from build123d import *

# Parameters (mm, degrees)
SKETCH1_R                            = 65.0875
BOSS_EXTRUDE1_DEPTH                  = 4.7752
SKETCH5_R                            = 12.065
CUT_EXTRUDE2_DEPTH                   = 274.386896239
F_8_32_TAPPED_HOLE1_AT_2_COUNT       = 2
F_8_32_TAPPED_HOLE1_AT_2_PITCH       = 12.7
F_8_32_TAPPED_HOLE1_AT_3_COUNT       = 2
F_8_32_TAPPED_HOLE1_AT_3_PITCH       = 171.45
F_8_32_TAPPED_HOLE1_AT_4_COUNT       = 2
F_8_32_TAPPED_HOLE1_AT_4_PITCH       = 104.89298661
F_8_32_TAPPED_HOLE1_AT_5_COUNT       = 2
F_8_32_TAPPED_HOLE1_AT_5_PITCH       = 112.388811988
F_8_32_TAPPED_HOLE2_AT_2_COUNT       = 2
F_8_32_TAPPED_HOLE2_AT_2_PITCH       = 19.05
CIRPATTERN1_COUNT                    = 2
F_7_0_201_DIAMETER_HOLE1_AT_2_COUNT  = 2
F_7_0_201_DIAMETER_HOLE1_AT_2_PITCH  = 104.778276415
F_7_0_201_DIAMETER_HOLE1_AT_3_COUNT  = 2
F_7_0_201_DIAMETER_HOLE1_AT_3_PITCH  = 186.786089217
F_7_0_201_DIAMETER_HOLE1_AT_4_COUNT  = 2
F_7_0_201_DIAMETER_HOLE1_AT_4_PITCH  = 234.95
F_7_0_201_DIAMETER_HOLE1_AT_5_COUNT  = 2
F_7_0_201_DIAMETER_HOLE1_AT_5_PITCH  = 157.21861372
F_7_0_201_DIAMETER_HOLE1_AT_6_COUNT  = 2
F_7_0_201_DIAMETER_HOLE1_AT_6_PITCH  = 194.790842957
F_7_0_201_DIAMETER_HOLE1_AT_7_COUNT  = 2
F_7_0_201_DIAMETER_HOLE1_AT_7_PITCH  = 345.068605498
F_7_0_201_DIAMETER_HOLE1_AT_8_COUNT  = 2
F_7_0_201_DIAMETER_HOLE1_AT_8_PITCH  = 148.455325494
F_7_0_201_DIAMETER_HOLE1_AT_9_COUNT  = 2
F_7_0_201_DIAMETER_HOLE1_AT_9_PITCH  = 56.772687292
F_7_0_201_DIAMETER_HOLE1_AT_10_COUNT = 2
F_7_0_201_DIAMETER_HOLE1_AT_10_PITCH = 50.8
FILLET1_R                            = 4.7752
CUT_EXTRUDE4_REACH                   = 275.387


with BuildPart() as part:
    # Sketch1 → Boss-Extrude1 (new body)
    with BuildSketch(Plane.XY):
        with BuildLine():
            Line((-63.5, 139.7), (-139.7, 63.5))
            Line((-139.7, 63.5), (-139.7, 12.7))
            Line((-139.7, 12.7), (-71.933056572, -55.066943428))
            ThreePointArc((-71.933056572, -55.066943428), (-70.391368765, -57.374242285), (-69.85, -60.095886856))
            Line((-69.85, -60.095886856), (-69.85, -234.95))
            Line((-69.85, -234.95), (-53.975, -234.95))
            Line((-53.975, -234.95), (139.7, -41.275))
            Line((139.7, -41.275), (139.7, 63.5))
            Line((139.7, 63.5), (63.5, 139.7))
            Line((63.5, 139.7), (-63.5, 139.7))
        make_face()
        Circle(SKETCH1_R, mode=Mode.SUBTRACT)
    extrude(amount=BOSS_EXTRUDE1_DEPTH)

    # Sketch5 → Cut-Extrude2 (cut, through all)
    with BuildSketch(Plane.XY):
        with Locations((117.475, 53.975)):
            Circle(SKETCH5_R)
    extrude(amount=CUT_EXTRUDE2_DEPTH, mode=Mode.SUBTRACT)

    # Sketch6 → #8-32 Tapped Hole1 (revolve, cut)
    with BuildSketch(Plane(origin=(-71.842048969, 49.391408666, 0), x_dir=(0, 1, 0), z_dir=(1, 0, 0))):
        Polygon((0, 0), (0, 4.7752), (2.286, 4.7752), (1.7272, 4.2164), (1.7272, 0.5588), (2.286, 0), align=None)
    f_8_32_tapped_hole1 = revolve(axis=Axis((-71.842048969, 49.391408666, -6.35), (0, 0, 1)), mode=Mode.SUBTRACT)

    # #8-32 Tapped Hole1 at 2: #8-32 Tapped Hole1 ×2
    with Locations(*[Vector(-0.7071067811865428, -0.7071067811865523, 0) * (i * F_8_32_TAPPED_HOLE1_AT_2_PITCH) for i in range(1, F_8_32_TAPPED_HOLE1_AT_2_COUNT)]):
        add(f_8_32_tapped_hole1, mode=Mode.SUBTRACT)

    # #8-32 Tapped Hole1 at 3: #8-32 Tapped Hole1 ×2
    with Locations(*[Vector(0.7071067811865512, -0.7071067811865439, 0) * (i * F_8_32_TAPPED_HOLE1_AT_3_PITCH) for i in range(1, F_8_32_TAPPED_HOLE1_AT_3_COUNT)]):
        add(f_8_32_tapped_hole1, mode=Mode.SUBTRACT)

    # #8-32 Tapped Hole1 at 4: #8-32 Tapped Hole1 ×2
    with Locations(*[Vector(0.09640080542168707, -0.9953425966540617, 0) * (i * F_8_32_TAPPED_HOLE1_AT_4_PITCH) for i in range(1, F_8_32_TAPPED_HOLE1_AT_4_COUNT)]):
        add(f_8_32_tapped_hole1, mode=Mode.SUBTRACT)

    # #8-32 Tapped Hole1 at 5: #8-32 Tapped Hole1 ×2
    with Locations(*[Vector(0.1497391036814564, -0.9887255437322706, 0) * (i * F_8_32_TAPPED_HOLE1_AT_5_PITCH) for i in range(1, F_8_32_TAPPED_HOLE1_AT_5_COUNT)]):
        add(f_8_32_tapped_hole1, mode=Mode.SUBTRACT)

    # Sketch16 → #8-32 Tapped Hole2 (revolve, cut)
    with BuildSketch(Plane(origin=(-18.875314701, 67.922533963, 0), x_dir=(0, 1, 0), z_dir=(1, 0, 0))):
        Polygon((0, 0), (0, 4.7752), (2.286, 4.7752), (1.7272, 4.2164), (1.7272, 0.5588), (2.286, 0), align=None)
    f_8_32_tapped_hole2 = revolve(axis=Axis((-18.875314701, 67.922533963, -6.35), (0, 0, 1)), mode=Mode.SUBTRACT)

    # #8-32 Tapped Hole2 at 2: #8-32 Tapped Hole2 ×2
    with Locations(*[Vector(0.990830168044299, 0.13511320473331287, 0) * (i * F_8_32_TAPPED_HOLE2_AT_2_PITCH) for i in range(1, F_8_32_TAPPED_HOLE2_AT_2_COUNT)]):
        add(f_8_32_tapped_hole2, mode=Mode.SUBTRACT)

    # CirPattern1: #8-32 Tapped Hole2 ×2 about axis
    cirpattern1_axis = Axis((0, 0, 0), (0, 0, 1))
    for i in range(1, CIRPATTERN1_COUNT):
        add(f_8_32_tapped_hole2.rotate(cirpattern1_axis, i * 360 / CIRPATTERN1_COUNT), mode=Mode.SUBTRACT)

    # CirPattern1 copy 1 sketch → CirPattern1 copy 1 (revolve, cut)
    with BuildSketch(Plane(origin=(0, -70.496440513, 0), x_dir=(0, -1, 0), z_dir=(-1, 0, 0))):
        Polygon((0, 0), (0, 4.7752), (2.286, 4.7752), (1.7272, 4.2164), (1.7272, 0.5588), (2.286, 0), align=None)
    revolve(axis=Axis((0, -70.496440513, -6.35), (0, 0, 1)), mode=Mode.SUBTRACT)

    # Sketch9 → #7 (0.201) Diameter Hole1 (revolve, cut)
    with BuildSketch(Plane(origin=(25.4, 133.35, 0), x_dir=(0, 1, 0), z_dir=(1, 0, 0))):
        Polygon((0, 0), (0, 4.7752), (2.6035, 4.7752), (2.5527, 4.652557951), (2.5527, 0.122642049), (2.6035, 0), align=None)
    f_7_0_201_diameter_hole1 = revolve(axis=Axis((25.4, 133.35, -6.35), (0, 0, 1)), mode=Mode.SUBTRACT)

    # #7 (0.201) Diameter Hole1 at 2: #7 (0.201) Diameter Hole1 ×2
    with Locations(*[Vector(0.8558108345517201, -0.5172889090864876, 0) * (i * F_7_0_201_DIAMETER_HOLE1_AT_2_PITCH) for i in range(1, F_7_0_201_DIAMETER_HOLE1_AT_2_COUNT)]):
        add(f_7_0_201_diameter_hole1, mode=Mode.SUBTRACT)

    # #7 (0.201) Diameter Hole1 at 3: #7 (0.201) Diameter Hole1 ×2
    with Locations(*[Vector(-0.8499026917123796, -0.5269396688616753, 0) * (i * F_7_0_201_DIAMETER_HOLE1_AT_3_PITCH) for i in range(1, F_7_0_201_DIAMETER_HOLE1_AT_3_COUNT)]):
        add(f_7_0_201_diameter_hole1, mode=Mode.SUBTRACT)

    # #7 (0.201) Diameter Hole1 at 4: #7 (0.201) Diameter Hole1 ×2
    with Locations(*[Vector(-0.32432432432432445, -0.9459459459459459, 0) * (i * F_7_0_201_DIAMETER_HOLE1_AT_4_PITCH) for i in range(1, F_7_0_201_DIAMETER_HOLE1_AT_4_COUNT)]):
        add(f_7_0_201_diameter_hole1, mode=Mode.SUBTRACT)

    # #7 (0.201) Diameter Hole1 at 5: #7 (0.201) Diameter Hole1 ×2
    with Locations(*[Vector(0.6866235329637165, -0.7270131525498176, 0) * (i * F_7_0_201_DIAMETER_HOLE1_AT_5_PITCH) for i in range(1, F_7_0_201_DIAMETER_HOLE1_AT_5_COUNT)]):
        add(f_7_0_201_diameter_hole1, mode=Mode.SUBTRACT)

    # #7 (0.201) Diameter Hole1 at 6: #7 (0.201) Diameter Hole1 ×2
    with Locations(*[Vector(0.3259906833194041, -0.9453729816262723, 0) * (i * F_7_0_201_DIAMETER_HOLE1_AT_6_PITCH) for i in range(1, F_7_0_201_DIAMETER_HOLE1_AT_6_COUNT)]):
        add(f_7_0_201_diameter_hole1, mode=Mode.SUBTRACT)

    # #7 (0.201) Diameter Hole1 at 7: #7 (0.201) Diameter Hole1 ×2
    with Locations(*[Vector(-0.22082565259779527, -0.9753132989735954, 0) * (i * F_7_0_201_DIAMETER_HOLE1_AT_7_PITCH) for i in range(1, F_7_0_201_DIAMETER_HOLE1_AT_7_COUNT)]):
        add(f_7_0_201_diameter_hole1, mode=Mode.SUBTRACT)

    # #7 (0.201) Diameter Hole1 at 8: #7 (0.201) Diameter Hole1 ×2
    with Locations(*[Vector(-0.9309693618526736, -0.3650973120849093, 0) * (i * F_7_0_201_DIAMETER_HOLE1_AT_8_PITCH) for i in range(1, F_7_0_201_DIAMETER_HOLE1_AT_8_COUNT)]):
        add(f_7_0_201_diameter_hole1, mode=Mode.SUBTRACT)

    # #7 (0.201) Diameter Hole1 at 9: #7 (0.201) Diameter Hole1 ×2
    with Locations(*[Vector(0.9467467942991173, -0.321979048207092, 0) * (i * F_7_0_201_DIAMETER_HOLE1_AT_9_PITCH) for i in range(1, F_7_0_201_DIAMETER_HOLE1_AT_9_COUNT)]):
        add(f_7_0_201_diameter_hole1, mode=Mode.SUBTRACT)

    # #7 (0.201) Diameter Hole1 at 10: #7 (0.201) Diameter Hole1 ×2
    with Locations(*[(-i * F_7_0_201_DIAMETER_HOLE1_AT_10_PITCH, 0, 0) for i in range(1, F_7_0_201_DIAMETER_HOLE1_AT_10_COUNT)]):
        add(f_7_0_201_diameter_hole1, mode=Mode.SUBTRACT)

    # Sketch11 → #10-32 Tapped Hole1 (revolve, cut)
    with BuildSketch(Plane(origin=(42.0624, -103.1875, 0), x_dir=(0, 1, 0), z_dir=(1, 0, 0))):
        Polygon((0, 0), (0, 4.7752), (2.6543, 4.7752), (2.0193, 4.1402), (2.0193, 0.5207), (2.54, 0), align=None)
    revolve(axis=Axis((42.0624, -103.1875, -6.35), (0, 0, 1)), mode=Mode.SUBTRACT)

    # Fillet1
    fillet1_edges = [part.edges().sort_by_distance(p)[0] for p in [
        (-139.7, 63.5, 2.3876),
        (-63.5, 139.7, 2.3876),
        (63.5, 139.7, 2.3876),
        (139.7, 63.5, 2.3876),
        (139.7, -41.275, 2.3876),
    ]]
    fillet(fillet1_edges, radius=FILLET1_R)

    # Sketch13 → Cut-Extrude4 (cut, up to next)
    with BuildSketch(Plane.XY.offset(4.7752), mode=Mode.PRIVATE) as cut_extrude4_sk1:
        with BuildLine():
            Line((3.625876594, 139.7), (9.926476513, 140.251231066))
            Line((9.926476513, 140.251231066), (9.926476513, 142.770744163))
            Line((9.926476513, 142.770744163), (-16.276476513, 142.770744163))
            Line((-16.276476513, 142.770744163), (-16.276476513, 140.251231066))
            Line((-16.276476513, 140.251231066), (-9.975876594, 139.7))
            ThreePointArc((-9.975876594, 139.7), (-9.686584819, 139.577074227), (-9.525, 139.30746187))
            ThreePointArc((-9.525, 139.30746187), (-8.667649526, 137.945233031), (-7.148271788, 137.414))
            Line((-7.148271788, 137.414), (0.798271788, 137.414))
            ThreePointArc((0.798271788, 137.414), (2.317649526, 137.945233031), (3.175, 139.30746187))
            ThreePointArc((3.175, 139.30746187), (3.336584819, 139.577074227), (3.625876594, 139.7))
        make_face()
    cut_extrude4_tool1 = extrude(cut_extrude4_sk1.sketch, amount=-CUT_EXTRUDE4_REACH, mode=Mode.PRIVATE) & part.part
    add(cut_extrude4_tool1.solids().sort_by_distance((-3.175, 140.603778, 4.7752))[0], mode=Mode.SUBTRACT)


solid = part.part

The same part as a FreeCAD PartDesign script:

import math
import FreeCAD as App
import Part
import Sketcher

V = App.Vector
Q = App.Units.Quantity


def edges_at(feature, points):
    """Names of the edges that pass closest to the given points."""
    edges = feature.Shape.Edges
    near = lambda p: min(range(len(edges)), key=lambda i: edges[i].distToShape(Part.Vertex(*p))[0])
    return sorted({f"Edge{near(p) + 1}" for p in points})

doc = App.newDocument("Part")
body = doc.addObject("PartDesign::Body", "Body")

sketch1 = doc.addObject("Sketcher::SketchObject", "Sketch")
body.addObject(sketch1)
sketch1.AttachmentSupport = (doc.XY_Plane, [""])
sketch1.MapMode = "FlatFace"
sketch1.addGeometry(Part.LineSegment(V(-63.5, 139.7, 0), V(-139.7, 63.5, 0)), False)
sketch1.addGeometry(Part.LineSegment(V(-139.7, 63.5, 0), V(-139.7, 12.7, 0)), False)
sketch1.addGeometry(Part.LineSegment(V(-139.7, 12.7, 0), V(-71.933057, -55.066943, 0)), False)
sketch1.addGeometry(Part.ArcOfCircle(Part.Circle(V(-76.962, -60.095887, 0), V(0, 0, 1), 7.112), math.radians(0), math.radians(45)), False)
sketch1.addGeometry(Part.LineSegment(V(-69.85, -60.095887, 0), V(-69.85, -234.95, 0)), False)
sketch1.addGeometry(Part.LineSegment(V(-69.85, -234.95, 0), V(-53.975, -234.95, 0)), False)
sketch1.addGeometry(Part.LineSegment(V(-53.975, -234.95, 0), V(139.7, -41.275, 0)), False)
sketch1.addGeometry(Part.LineSegment(V(139.7, -41.275, 0), V(139.7, 63.5, 0)), False)
sketch1.addGeometry(Part.LineSegment(V(139.7, 63.5, 0), V(63.5, 139.7, 0)), False)
sketch1.addGeometry(Part.LineSegment(V(63.5, 139.7, 0), V(-63.5, 139.7, 0)), False)
sketch1.addGeometry(Part.Circle(V(0, 0, 0), V(0, 0, 1), 65.0875), False)
sketch1.addConstraint(Sketcher.Constraint("Coincident", 0, 2, 1, 1))
sketch1.addConstraint(Sketcher.Constraint("Coincident", 1, 2, 2, 1))
sketch1.addConstraint(Sketcher.Constraint("Tangent", 2, 2, 3, 2))
sketch1.addConstraint(Sketcher.Constraint("Tangent", 3, 1, 4, 1))
sketch1.addConstraint(Sketcher.Constraint("Coincident", 4, 2, 5, 1))
sketch1.addConstraint(Sketcher.Constraint("Coincident", 5, 2, 6, 1))
sketch1.addConstraint(Sketcher.Constraint("Coincident", 6, 2, 7, 1))
sketch1.addConstraint(Sketcher.Constraint("Coincident", 7, 2, 8, 1))
sketch1.addConstraint(Sketcher.Constraint("Coincident", 8, 2, 9, 1))
sketch1.addConstraint(Sketcher.Constraint("Coincident", 9, 2, 0, 1))
sketch1.addConstraint(Sketcher.Constraint("Vertical", 1))
sketch1.addConstraint(Sketcher.Constraint("Vertical", 4))
sketch1.addConstraint(Sketcher.Constraint("Horizontal", 5))
sketch1.addConstraint(Sketcher.Constraint("Vertical", 7))
sketch1.addConstraint(Sketcher.Constraint("Horizontal", 9))
sketch1.addConstraint(Sketcher.Constraint("Coincident", 10, 3, -1, 1))
sketch1.addConstraint(Sketcher.Constraint("Symmetric", 0, 2, 7, 2, -2))
sketch1.addConstraint(Sketcher.Constraint("Perpendicular", 0, 2))
sketch1.addConstraint(Sketcher.Constraint("Perpendicular", 2, 6))
sketch1.addConstraint(Sketcher.Constraint("Perpendicular", 6, 8))
sketch1.addConstraint(Sketcher.Constraint("Equal", 0, 8))
sketch1.addConstraint(Sketcher.Constraint("DistanceX", 9, 2, 9, 1, Q("5 in")))
sketch1.addConstraint(Sketcher.Constraint("DistanceY", 1, 2, 1, 1, Q("2 in")))
sketch1.addConstraint(Sketcher.Constraint("Radius", 3, Q("0.28 in")))
sketch1.addConstraint(Sketcher.Constraint("Diameter", 10, Q("5.125 in")))
sketch1.addConstraint(Sketcher.Constraint("DistanceX", 8, 2, 7, 2, Q("3 in")))
sketch1.addConstraint(Sketcher.Constraint("DistanceY", -1, 1, 0, 2, Q("2.5 in")))
sketch1.addConstraint(Sketcher.Constraint("DistanceX", 5, 1, 5, 2, Q("0.625 in")))
sketch1.addConstraint(Sketcher.Constraint("DistanceY", 7, 1, 7, 2, Q("4.125 in")))
sketch1.addConstraint(Sketcher.Constraint("DistanceX", 3, 3, -1, 1, Q("3.03 in")))
pad1 = doc.addObject("PartDesign::Pad", "Pad")
body.addObject(pad1)
pad1.Profile = sketch1
pad1.Length = Q("0.188 in")

sketch2 = doc.addObject("Sketcher::SketchObject", "Sketch001")
body.addObject(sketch2)
sketch2.AttachmentSupport = (doc.XY_Plane, [""])
sketch2.MapMode = "FlatFace"
sketch2.addGeometry(Part.Circle(V(117.475, 53.975, 0), V(0, 0, 1), 12.065), False)
sketch2.addConstraint(Sketcher.Constraint("Diameter", 0, Q("0.95 in")))
sketch2.addConstraint(Sketcher.Constraint("DistanceX", -1, 1, 0, 3, Q("4.625 in")))
sketch2.addConstraint(Sketcher.Constraint("DistanceY", -1, 1, 0, 3, Q("2.125 in")))
pocket1 = doc.addObject("PartDesign::Pocket", "Pocket")
body.addObject(pocket1)
pocket1.Profile = sketch2
pocket1.Type = "ThroughAll"
pocket1.Reversed = True

sketch3 = doc.addObject("Sketcher::SketchObject", "Sketch002")
body.addObject(sketch3)
sketch3.AttachmentSupport = (doc.YZ_Plane, [""])
sketch3.MapMode = "FlatFace"
sketch3.AttachmentOffset = App.Placement(V(0, 0, -71.842049), App.Rotation())
sketch3.addGeometry(Part.LineSegment(V(49.391409, 4.7752, 0), V(49.391409, 0, 0)), False)
sketch3.addGeometry(Part.LineSegment(V(49.391409, 0, 0), V(51.677409, 0, 0)), False)
sketch3.addGeometry(Part.LineSegment(V(51.677409, 0, 0), V(51.118609, 0.5588, 0)), False)
sketch3.addGeometry(Part.LineSegment(V(51.118609, 0.5588, 0), V(51.118609, 4.2164, 0)), False)
sketch3.addGeometry(Part.LineSegment(V(51.118609, 4.2164, 0), V(51.677409, 4.7752, 0)), False)
sketch3.addGeometry(Part.LineSegment(V(51.677409, 4.7752, 0), V(49.391409, 4.7752, 0)), False)
sketch3.addGeometry(Part.LineSegment(V(49.391409, 0, 0), V(49.391409, 4.7752, 0)), True)
sketch3.addConstraint(Sketcher.Constraint("Coincident", 0, 2, 1, 1))
sketch3.addConstraint(Sketcher.Constraint("Coincident", 1, 2, 2, 1))
sketch3.addConstraint(Sketcher.Constraint("Coincident", 2, 2, 3, 1))
sketch3.addConstraint(Sketcher.Constraint("Coincident", 3, 2, 4, 1))
sketch3.addConstraint(Sketcher.Constraint("Coincident", 4, 2, 5, 1))
sketch3.addConstraint(Sketcher.Constraint("Coincident", 5, 2, 0, 1))
sketch3.addConstraint(Sketcher.Constraint("Vertical", 0))
sketch3.addConstraint(Sketcher.Constraint("Horizontal", 1))
sketch3.addConstraint(Sketcher.Constraint("Vertical", 3))
sketch3.addConstraint(Sketcher.Constraint("Horizontal", 5))
sketch3.addConstraint(Sketcher.Constraint("Vertical", 6))
sketch3.addConstraint(Sketcher.Constraint("Coincident", 6, 1, 0, 2))
sketch3.addConstraint(Sketcher.Constraint("PointOnObject", 0, 2, -1))
sketch3.addConstraint(Sketcher.Constraint("Perpendicular", 2, 4))
sketch3.addConstraint(Sketcher.Constraint("Horizontal", 4, 2, 6, 2))
sketch3.addConstraint(Sketcher.Constraint("Vertical", 1, 2, 4, 2))
sketch3.addConstraint(Sketcher.Constraint("Equal", 2, 4))
sketch3.addConstraint(Sketcher.Constraint("DistanceX", 1, 1, 1, 2, Q("0.09 in")))
sketch3.addConstraint(Sketcher.Constraint("DistanceY", 0, 2, 0, 1, Q("0.188 in")))
sketch3.addConstraint(Sketcher.Constraint("DistanceY", 3, 1, 3, 2, Q("0.144 in")))
sketch3.addConstraint(Sketcher.Constraint("DistanceX", -1, 1, 0, 2, Q("49.391409 mm")))
groove = doc.addObject("PartDesign::Groove", "Groove")
body.addObject(groove)
groove.Profile = sketch3
groove.ReferenceAxis = (sketch3, ["Axis0"])
groove.Angle = 360
doc.recompute()

datumline = doc.addObject("PartDesign::Line", "DatumLine")
body.addObject(datumline)
datumline.Placement = App.Placement(V(0, 0, 0), App.Rotation(V(0, 0, 1), V(-0.707106781, -0.707106781, 0)))
linearpattern = doc.addObject("PartDesign::LinearPattern", "LinearPattern")
body.addObject(linearpattern)
linearpattern.Originals = [groove]
linearpattern.Direction = (datumline, [""])
linearpattern.Mode = "offset"
linearpattern.Offset = Q("0.5 in")
linearpattern.Occurrences = 2
body.Tip = linearpattern
doc.recompute()

datumline2 = doc.addObject("PartDesign::Line", "DatumLine001")
body.addObject(datumline2)
datumline2.Placement = App.Placement(V(0, 0, 0), App.Rotation(V(0, 0, 1), V(0.707106781, -0.707106781, 0)))
linearpattern2 = doc.addObject("PartDesign::LinearPattern", "LinearPattern001")
body.addObject(linearpattern2)
linearpattern2.Originals = [groove]
linearpattern2.Direction = (datumline2, [""])
linearpattern2.Mode = "offset"
linearpattern2.Offset = Q("6.75 in")
linearpattern2.Occurrences = 2
body.Tip = linearpattern2
doc.recompute()

datumline3 = doc.addObject("PartDesign::Line", "DatumLine002")
body.addObject(datumline3)
datumline3.Placement = App.Placement(V(0, 0, 0), App.Rotation(V(0, 0, 1), V(0.096400805, -0.995342597, 0)))
linearpattern3 = doc.addObject("PartDesign::LinearPattern", "LinearPattern002")
body.addObject(linearpattern3)
linearpattern3.Originals = [groove]
linearpattern3.Direction = (datumline3, [""])
linearpattern3.Mode = "offset"
linearpattern3.Offset = 104.892987
linearpattern3.Occurrences = 2
body.Tip = linearpattern3
doc.recompute()

datumline4 = doc.addObject("PartDesign::Line", "DatumLine003")
body.addObject(datumline4)
datumline4.Placement = App.Placement(V(0, 0, 0), App.Rotation(V(0, 0, 1), V(0.149739104, -0.988725544, 0)))
linearpattern4 = doc.addObject("PartDesign::LinearPattern", "LinearPattern003")
body.addObject(linearpattern4)
linearpattern4.Originals = [groove]
linearpattern4.Direction = (datumline4, [""])
linearpattern4.Mode = "offset"
linearpattern4.Offset = 112.388812
linearpattern4.Occurrences = 2
body.Tip = linearpattern4

sketch4 = doc.addObject("Sketcher::SketchObject", "Sketch003")
body.addObject(sketch4)
sketch4.AttachmentSupport = (doc.YZ_Plane, [""])
sketch4.MapMode = "FlatFace"
sketch4.AttachmentOffset = App.Placement(V(0, 0, -18.875315), App.Rotation())
sketch4.addGeometry(Part.LineSegment(V(67.922534, 4.7752, 0), V(67.922534, 0, 0)), False)
sketch4.addGeometry(Part.LineSegment(V(67.922534, 0, 0), V(70.208534, 0, 0)), False)
sketch4.addGeometry(Part.LineSegment(V(70.208534, 0, 0), V(69.649734, 0.5588, 0)), False)
sketch4.addGeometry(Part.LineSegment(V(69.649734, 0.5588, 0), V(69.649734, 4.2164, 0)), False)
sketch4.addGeometry(Part.LineSegment(V(69.649734, 4.2164, 0), V(70.208534, 4.7752, 0)), False)
sketch4.addGeometry(Part.LineSegment(V(70.208534, 4.7752, 0), V(67.922534, 4.7752, 0)), False)
sketch4.addGeometry(Part.LineSegment(V(67.922534, 0, 0), V(67.922534, 4.7752, 0)), True)
sketch4.addConstraint(Sketcher.Constraint("Coincident", 0, 2, 1, 1))
sketch4.addConstraint(Sketcher.Constraint("Coincident", 1, 2, 2, 1))
sketch4.addConstraint(Sketcher.Constraint("Coincident", 2, 2, 3, 1))
sketch4.addConstraint(Sketcher.Constraint("Coincident", 3, 2, 4, 1))
sketch4.addConstraint(Sketcher.Constraint("Coincident", 4, 2, 5, 1))
sketch4.addConstraint(Sketcher.Constraint("Coincident", 5, 2, 0, 1))
sketch4.addConstraint(Sketcher.Constraint("Vertical", 0))
sketch4.addConstraint(Sketcher.Constraint("Horizontal", 1))
sketch4.addConstraint(Sketcher.Constraint("Vertical", 3))
sketch4.addConstraint(Sketcher.Constraint("Horizontal", 5))
sketch4.addConstraint(Sketcher.Constraint("Vertical", 6))
sketch4.addConstraint(Sketcher.Constraint("Coincident", 6, 1, 0, 2))
sketch4.addConstraint(Sketcher.Constraint("PointOnObject", 0, 2, -1))
sketch4.addConstraint(Sketcher.Constraint("Perpendicular", 2, 4))
sketch4.addConstraint(Sketcher.Constraint("Horizontal", 4, 2, 6, 2))
sketch4.addConstraint(Sketcher.Constraint("Vertical", 1, 2, 4, 2))
sketch4.addConstraint(Sketcher.Constraint("Equal", 2, 4))
sketch4.addConstraint(Sketcher.Constraint("DistanceX", 1, 1, 1, 2, Q("0.09 in")))
sketch4.addConstraint(Sketcher.Constraint("DistanceY", 0, 2, 0, 1, Q("0.188 in")))
sketch4.addConstraint(Sketcher.Constraint("DistanceY", 3, 1, 3, 2, Q("0.144 in")))
sketch4.addConstraint(Sketcher.Constraint("DistanceX", -1, 1, 0, 2, Q("67.922534 mm")))
groove2 = doc.addObject("PartDesign::Groove", "Groove001")
body.addObject(groove2)
groove2.Profile = sketch4
groove2.ReferenceAxis = (sketch4, ["Axis0"])
groove2.Angle = 360
doc.recompute()

datumline5 = doc.addObject("PartDesign::Line", "DatumLine004")
body.addObject(datumline5)
datumline5.Placement = App.Placement(V(0, 0, 0), App.Rotation(V(0, 0, 1), V(0.990830168, 0.135113205, 0)))
linearpattern5 = doc.addObject("PartDesign::LinearPattern", "LinearPattern004")
body.addObject(linearpattern5)
linearpattern5.Originals = [groove2]
linearpattern5.Direction = (datumline5, [""])
linearpattern5.Mode = "offset"
linearpattern5.Offset = Q("0.75 in")
linearpattern5.Occurrences = 2
body.Tip = linearpattern5
doc.recompute()

polarpattern = doc.addObject("PartDesign::PolarPattern", "PolarPattern")
body.addObject(polarpattern)
polarpattern.Originals = [groove2]
polarpattern.Axis = (doc.Z_Axis, [""])
polarpattern.Angle = 360
polarpattern.Occurrences = 2
body.Tip = polarpattern

sketch5 = doc.addObject("Sketcher::SketchObject", "Sketch004")
body.addObject(sketch5)
sketch5.AttachmentSupport = (doc.YZ_Plane, [""])
sketch5.MapMode = "FlatFace"
sketch5.addGeometry(Part.LineSegment(V(-70.496441, 4.7752, 0), V(-70.496441, 0, 0)), False)
sketch5.addGeometry(Part.LineSegment(V(-70.496441, 0, 0), V(-72.782441, 0, 0)), False)
sketch5.addGeometry(Part.LineSegment(V(-72.782441, 0, 0), V(-72.223641, 0.5588, 0)), False)
sketch5.addGeometry(Part.LineSegment(V(-72.223641, 0.5588, 0), V(-72.223641, 4.2164, 0)), False)
sketch5.addGeometry(Part.LineSegment(V(-72.223641, 4.2164, 0), V(-72.782441, 4.7752, 0)), False)
sketch5.addGeometry(Part.LineSegment(V(-72.782441, 4.7752, 0), V(-70.496441, 4.7752, 0)), False)
sketch5.addGeometry(Part.LineSegment(V(-70.496441, 0, 0), V(-70.496441, 4.7752, 0)), True)
sketch5.addConstraint(Sketcher.Constraint("Coincident", 0, 2, 1, 1))
sketch5.addConstraint(Sketcher.Constraint("Coincident", 1, 2, 2, 1))
sketch5.addConstraint(Sketcher.Constraint("Coincident", 2, 2, 3, 1))
sketch5.addConstraint(Sketcher.Constraint("Coincident", 3, 2, 4, 1))
sketch5.addConstraint(Sketcher.Constraint("Coincident", 4, 2, 5, 1))
sketch5.addConstraint(Sketcher.Constraint("Coincident", 5, 2, 0, 1))
sketch5.addConstraint(Sketcher.Constraint("Vertical", 0))
sketch5.addConstraint(Sketcher.Constraint("Horizontal", 1))
sketch5.addConstraint(Sketcher.Constraint("Vertical", 3))
sketch5.addConstraint(Sketcher.Constraint("Horizontal", 5))
sketch5.addConstraint(Sketcher.Constraint("Vertical", 6))
sketch5.addConstraint(Sketcher.Constraint("Coincident", 6, 1, 0, 2))
sketch5.addConstraint(Sketcher.Constraint("PointOnObject", 0, 2, -1))
sketch5.addConstraint(Sketcher.Constraint("Perpendicular", 2, 4))
sketch5.addConstraint(Sketcher.Constraint("Horizontal", 4, 2, 6, 2))
sketch5.addConstraint(Sketcher.Constraint("Vertical", 1, 2, 4, 2))
sketch5.addConstraint(Sketcher.Constraint("Equal", 2, 4))
sketch5.addConstraint(Sketcher.Constraint("DistanceX", 1, 2, 1, 1, Q("0.09 in")))
sketch5.addConstraint(Sketcher.Constraint("DistanceY", 0, 2, 0, 1, Q("0.188 in")))
sketch5.addConstraint(Sketcher.Constraint("DistanceY", 3, 1, 3, 2, Q("0.144 in")))
sketch5.addConstraint(Sketcher.Constraint("DistanceX", 0, 2, -1, 1, Q("70.496441 mm")))
groove3 = doc.addObject("PartDesign::Groove", "Groove002")
body.addObject(groove3)
groove3.Profile = sketch5
groove3.ReferenceAxis = (sketch5, ["Axis0"])
groove3.Angle = 360

sketch6 = doc.addObject("Sketcher::SketchObject", "Sketch005")
body.addObject(sketch6)
sketch6.AttachmentSupport = (doc.YZ_Plane, [""])
sketch6.MapMode = "FlatFace"
sketch6.AttachmentOffset = App.Placement(V(0, 0, 1 * 25.4), App.Rotation())
sketch6.addGeometry(Part.LineSegment(V(133.35, 4.7752, 0), V(133.35, 0, 0)), False)
sketch6.addGeometry(Part.LineSegment(V(133.35, 0, 0), V(135.9535, 0, 0)), False)
sketch6.addGeometry(Part.LineSegment(V(135.9535, 0, 0), V(135.9027, 0.122642, 0)), False)
sketch6.addGeometry(Part.LineSegment(V(135.9027, 0.122642, 0), V(135.9027, 4.652558, 0)), False)
sketch6.addGeometry(Part.LineSegment(V(135.9027, 4.652558, 0), V(135.9535, 4.7752, 0)), False)
sketch6.addGeometry(Part.LineSegment(V(135.9535, 4.7752, 0), V(133.35, 4.7752, 0)), False)
sketch6.addGeometry(Part.LineSegment(V(133.35, 0, 0), V(133.35, 4.7752, 0)), True)
sketch6.addConstraint(Sketcher.Constraint("Coincident", 0, 2, 1, 1))
sketch6.addConstraint(Sketcher.Constraint("Coincident", 1, 2, 2, 1))
sketch6.addConstraint(Sketcher.Constraint("Coincident", 2, 2, 3, 1))
sketch6.addConstraint(Sketcher.Constraint("Coincident", 3, 2, 4, 1))
sketch6.addConstraint(Sketcher.Constraint("Coincident", 4, 2, 5, 1))
sketch6.addConstraint(Sketcher.Constraint("Coincident", 5, 2, 0, 1))
sketch6.addConstraint(Sketcher.Constraint("Vertical", 0))
sketch6.addConstraint(Sketcher.Constraint("Horizontal", 1))
sketch6.addConstraint(Sketcher.Constraint("Vertical", 3))
sketch6.addConstraint(Sketcher.Constraint("Horizontal", 5))
sketch6.addConstraint(Sketcher.Constraint("Vertical", 6))
sketch6.addConstraint(Sketcher.Constraint("Coincident", 6, 1, 0, 2))
sketch6.addConstraint(Sketcher.Constraint("PointOnObject", 0, 2, -1))
sketch6.addConstraint(Sketcher.Constraint("Horizontal", 4, 2, 6, 2))
sketch6.addConstraint(Sketcher.Constraint("Vertical", 1, 2, 4, 2))
sketch6.addConstraint(Sketcher.Constraint("Equal", 2, 4))
sketch6.addConstraint(Sketcher.Constraint("Angle", 2, Q("112.5 deg")))
sketch6.addConstraint(Sketcher.Constraint("DistanceY", 0, 2, 0, 1, Q("0.188 in")))
sketch6.addConstraint(Sketcher.Constraint("DistanceX", -1, 1, 0, 2, Q("5.25 in")))
sketch6.addConstraint(Sketcher.Constraint("DistanceX", 1, 1, 1, 2, Q("0.1025 in")))
sketch6.addConstraint(Sketcher.Constraint("DistanceX", 2, 2, 1, 2, Q("0.002 in")))
groove4 = doc.addObject("PartDesign::Groove", "Groove003")
body.addObject(groove4)
groove4.Profile = sketch6
groove4.ReferenceAxis = (sketch6, ["Axis0"])
groove4.Angle = 360
doc.recompute()

datumline6 = doc.addObject("PartDesign::Line", "DatumLine005")
body.addObject(datumline6)
datumline6.Placement = App.Placement(V(0, 0, 0), App.Rotation(V(0, 0, 1), V(0.855810835, -0.517288909, 0)))
linearpattern6 = doc.addObject("PartDesign::LinearPattern", "LinearPattern005")
body.addObject(linearpattern6)
linearpattern6.Originals = [groove4]
linearpattern6.Direction = (datumline6, [""])
linearpattern6.Mode = "offset"
linearpattern6.Offset = 104.778276
linearpattern6.Occurrences = 2
body.Tip = linearpattern6
doc.recompute()

datumline7 = doc.addObject("PartDesign::Line", "DatumLine006")
body.addObject(datumline7)
datumline7.Placement = App.Placement(V(0, 0, 0), App.Rotation(V(0, 0, 1), V(-0.849902692, -0.526939669, 0)))
linearpattern7 = doc.addObject("PartDesign::LinearPattern", "LinearPattern006")
body.addObject(linearpattern7)
linearpattern7.Originals = [groove4]
linearpattern7.Direction = (datumline7, [""])
linearpattern7.Mode = "offset"
linearpattern7.Offset = 186.786089
linearpattern7.Occurrences = 2
body.Tip = linearpattern7
doc.recompute()

datumline8 = doc.addObject("PartDesign::Line", "DatumLine007")
body.addObject(datumline8)
datumline8.Placement = App.Placement(V(0, 0, 0), App.Rotation(V(0, 0, 1), V(-0.324324324, -0.945945946, 0)))
linearpattern8 = doc.addObject("PartDesign::LinearPattern", "LinearPattern007")
body.addObject(linearpattern8)
linearpattern8.Originals = [groove4]
linearpattern8.Direction = (datumline8, [""])
linearpattern8.Mode = "offset"
linearpattern8.Offset = Q("9.25 in")
linearpattern8.Occurrences = 2
body.Tip = linearpattern8
doc.recompute()

datumline9 = doc.addObject("PartDesign::Line", "DatumLine008")
body.addObject(datumline9)
datumline9.Placement = App.Placement(V(0, 0, 0), App.Rotation(V(0, 0, 1), V(0.686623533, -0.727013153, 0)))
linearpattern9 = doc.addObject("PartDesign::LinearPattern", "LinearPattern008")
body.addObject(linearpattern9)
linearpattern9.Originals = [groove4]
linearpattern9.Direction = (datumline9, [""])
linearpattern9.Mode = "offset"
linearpattern9.Offset = 157.218614
linearpattern9.Occurrences = 2
body.Tip = linearpattern9
doc.recompute()

datumline10 = doc.addObject("PartDesign::Line", "DatumLine009")
body.addObject(datumline10)
datumline10.Placement = App.Placement(V(0, 0, 0), App.Rotation(V(0, 0, 1), V(0.325990683, -0.945372982, 0)))
linearpattern10 = doc.addObject("PartDesign::LinearPattern", "LinearPattern009")
body.addObject(linearpattern10)
linearpattern10.Originals = [groove4]
linearpattern10.Direction = (datumline10, [""])
linearpattern10.Mode = "offset"
linearpattern10.Offset = 194.790843
linearpattern10.Occurrences = 2
body.Tip = linearpattern10
doc.recompute()

datumline11 = doc.addObject("PartDesign::Line", "DatumLine010")
body.addObject(datumline11)
datumline11.Placement = App.Placement(V(0, 0, 0), App.Rotation(V(0, 0, 1), V(-0.220825653, -0.975313299, 0)))
linearpattern11 = doc.addObject("PartDesign::LinearPattern", "LinearPattern010")
body.addObject(linearpattern11)
linearpattern11.Originals = [groove4]
linearpattern11.Direction = (datumline11, [""])
linearpattern11.Mode = "offset"
linearpattern11.Offset = 345.068605
linearpattern11.Occurrences = 2
body.Tip = linearpattern11
doc.recompute()

datumline12 = doc.addObject("PartDesign::Line", "DatumLine011")
body.addObject(datumline12)
datumline12.Placement = App.Placement(V(0, 0, 0), App.Rotation(V(0, 0, 1), V(-0.930969362, -0.365097312, 0)))
linearpattern12 = doc.addObject("PartDesign::LinearPattern", "LinearPattern011")
body.addObject(linearpattern12)
linearpattern12.Originals = [groove4]
linearpattern12.Direction = (datumline12, [""])
linearpattern12.Mode = "offset"
linearpattern12.Offset = 148.455325
linearpattern12.Occurrences = 2
body.Tip = linearpattern12
doc.recompute()

datumline13 = doc.addObject("PartDesign::Line", "DatumLine012")
body.addObject(datumline13)
datumline13.Placement = App.Placement(V(0, 0, 0), App.Rotation(V(0, 0, 1), V(0.946746794, -0.321979048, 0)))
linearpattern13 = doc.addObject("PartDesign::LinearPattern", "LinearPattern012")
body.addObject(linearpattern13)
linearpattern13.Originals = [groove4]
linearpattern13.Direction = (datumline13, [""])
linearpattern13.Mode = "offset"
linearpattern13.Offset = 56.772687
linearpattern13.Occurrences = 2
body.Tip = linearpattern13
doc.recompute()

linearpattern14 = doc.addObject("PartDesign::LinearPattern", "LinearPattern013")
body.addObject(linearpattern14)
linearpattern14.Originals = [groove4]
linearpattern14.Direction = (doc.X_Axis, [""])
linearpattern14.Mode = "offset"
linearpattern14.Offset = Q("2 in")
linearpattern14.Occurrences = 2
linearpattern14.Reversed = True
body.Tip = linearpattern14

sketch7 = doc.addObject("Sketcher::SketchObject", "Sketch006")
body.addObject(sketch7)
sketch7.AttachmentSupport = (doc.YZ_Plane, [""])
sketch7.MapMode = "FlatFace"
sketch7.AttachmentOffset = App.Placement(V(0, 0, 1.656 * 25.4), App.Rotation())
sketch7.addGeometry(Part.LineSegment(V(-103.1875, 4.7752, 0), V(-103.1875, 0, 0)), False)
sketch7.addGeometry(Part.LineSegment(V(-103.1875, 0, 0), V(-100.6475, 0, 0)), False)
sketch7.addGeometry(Part.LineSegment(V(-100.6475, 0, 0), V(-101.1682, 0.5207, 0)), False)
sketch7.addGeometry(Part.LineSegment(V(-101.1682, 0.5207, 0), V(-101.1682, 4.1402, 0)), False)
sketch7.addGeometry(Part.LineSegment(V(-101.1682, 4.1402, 0), V(-100.5332, 4.7752, 0)), False)
sketch7.addGeometry(Part.LineSegment(V(-100.5332, 4.7752, 0), V(-103.1875, 4.7752, 0)), False)
sketch7.addGeometry(Part.LineSegment(V(-103.1875, 0, 0), V(-103.1875, 4.7752, 0)), True)
sketch7.addConstraint(Sketcher.Constraint("Coincident", 0, 2, 1, 1))
sketch7.addConstraint(Sketcher.Constraint("Coincident", 1, 2, 2, 1))
sketch7.addConstraint(Sketcher.Constraint("Coincident", 2, 2, 3, 1))
sketch7.addConstraint(Sketcher.Constraint("Coincident", 3, 2, 4, 1))
sketch7.addConstraint(Sketcher.Constraint("Coincident", 4, 2, 5, 1))
sketch7.addConstraint(Sketcher.Constraint("Coincident", 5, 2, 0, 1))
sketch7.addConstraint(Sketcher.Constraint("Vertical", 0))
sketch7.addConstraint(Sketcher.Constraint("Horizontal", 1))
sketch7.addConstraint(Sketcher.Constraint("Vertical", 3))
sketch7.addConstraint(Sketcher.Constraint("Horizontal", 5))
sketch7.addConstraint(Sketcher.Constraint("Vertical", 6))
sketch7.addConstraint(Sketcher.Constraint("Coincident", 6, 1, 0, 2))
sketch7.addConstraint(Sketcher.Constraint("PointOnObject", 0, 2, -1))
sketch7.addConstraint(Sketcher.Constraint("Perpendicular", 2, 4))
sketch7.addConstraint(Sketcher.Constraint("Horizontal", 4, 2, 6, 2))
sketch7.addConstraint(Sketcher.Constraint("DistanceX", 1, 1, 1, 2, Q("0.1 in")))
sketch7.addConstraint(Sketcher.Constraint("Angle", 2, Q("135 deg")))
sketch7.addConstraint(Sketcher.Constraint("DistanceY", 0, 2, 0, 1, Q("0.188 in")))
sketch7.addConstraint(Sketcher.Constraint("DistanceX", 5, 2, 5, 1, Q("0.1045 in")))
sketch7.addConstraint(Sketcher.Constraint("DistanceY", 3, 1, 3, 2, Q("0.1425 in")))
sketch7.addConstraint(Sketcher.Constraint("DistanceX", 0, 2, -1, 1, Q("4.0625 in")))
groove5 = doc.addObject("PartDesign::Groove", "Groove004")
body.addObject(groove5)
groove5.Profile = sketch7
groove5.ReferenceAxis = (sketch7, ["Axis0"])
groove5.Angle = 360
doc.recompute()

fillet = doc.addObject("PartDesign::Fillet", "Fillet")
body.addObject(fillet)
fillet.Base = (groove5, edges_at(groove5, [
    (-139.7, 63.5, 2.388),
    (-63.5, 139.7, 2.388),
    (63.5, 139.7, 2.388),
    (139.7, 63.5, 2.388),
    (139.7, -41.275, 2.388),
]))
fillet.Radius = Q("0.188 in")

sketch8 = doc.addObject("Sketcher::SketchObject", "Sketch007")
body.addObject(sketch8)
sketch8.AttachmentSupport = (doc.XY_Plane, [""])
sketch8.MapMode = "FlatFace"
sketch8.AttachmentOffset = App.Placement(V(0, 0, 0.188 * 25.4), App.Rotation())
sketch8.addGeometry(Part.LineSegment(V(3.625877, 139.7, 0), V(9.926477, 140.251231, 0)), False)
sketch8.addGeometry(Part.LineSegment(V(9.926477, 140.251231, 0), V(9.926477, 142.770744, 0)), False)
sketch8.addGeometry(Part.LineSegment(V(9.926477, 142.770744, 0), V(-16.276477, 142.770744, 0)), False)
sketch8.addGeometry(Part.LineSegment(V(-16.276477, 142.770744, 0), V(-16.276477, 140.251231, 0)), False)
sketch8.addGeometry(Part.LineSegment(V(-16.276477, 140.251231, 0), V(-9.975877, 139.7, 0)), False)
sketch8.addGeometry(Part.ArcOfCircle(Part.Circle(V(-10.020152, 139.193933, 0), V(0, 0, 1), 0.508), math.radians(12.913621), math.radians(85)), False)
sketch8.addGeometry(Part.ArcOfCircle(Part.Circle(V(-7.148272, 139.8524, 0), V(0, 0, 1), 2.4384), math.radians(-167.086379), math.radians(-90)), False)
sketch8.addGeometry(Part.LineSegment(V(-7.148272, 137.414, 0), V(0.798272, 137.414, 0)), False)
sketch8.addGeometry(Part.ArcOfCircle(Part.Circle(V(0.798272, 139.8524, 0), V(0, 0, 1), 2.4384), math.radians(-90), math.radians(-12.913621)), False)
sketch8.addGeometry(Part.ArcOfCircle(Part.Circle(V(3.670152, 139.193933, 0), V(0, 0, 1), 0.508), math.radians(95), math.radians(167.086379)), False)
sketch8.addConstraint(Sketcher.Constraint("Coincident", 0, 2, 1, 1))
sketch8.addConstraint(Sketcher.Constraint("Coincident", 1, 2, 2, 1))
sketch8.addConstraint(Sketcher.Constraint("Coincident", 2, 2, 3, 1))
sketch8.addConstraint(Sketcher.Constraint("Coincident", 3, 2, 4, 1))
sketch8.addConstraint(Sketcher.Constraint("Tangent", 4, 2, 5, 2))
sketch8.addConstraint(Sketcher.Constraint("Tangent", 5, 1, 6, 1))
sketch8.addConstraint(Sketcher.Constraint("Tangent", 6, 2, 7, 1))
sketch8.addConstraint(Sketcher.Constraint("Tangent", 7, 2, 8, 1))
sketch8.addConstraint(Sketcher.Constraint("Tangent", 8, 2, 9, 2))
sketch8.addConstraint(Sketcher.Constraint("Tangent", 9, 1, 0, 1))
sketch8.addConstraint(Sketcher.Constraint("Vertical", 1))
sketch8.addConstraint(Sketcher.Constraint("Horizontal", 2))
sketch8.addConstraint(Sketcher.Constraint("Vertical", 3))
sketch8.addConstraint(Sketcher.Constraint("Horizontal", 7))
sketch8.addConstraint(Sketcher.Constraint("Equal", 6, 8))
sketch8.addConstraint(Sketcher.Constraint("Equal", 5, 9))
sketch8.addConstraint(Sketcher.Constraint("Horizontal", 5, 3, 9, 3))
sketch8.addConstraint(Sketcher.Constraint("Horizontal", 0, 2, 3, 2))
sketch8.addConstraint(Sketcher.Constraint("Equal", 0, 4))
sketch8.addConstraint(Sketcher.Constraint("Radius", 5, Q("0.02 in")))
sketch8.addConstraint(Sketcher.Constraint("Angle", 0, Q("5 deg")))
sketch8.addConstraint(Sketcher.Constraint("Radius", 6, Q("0.096 in")))
sketch8.addConstraint(Sketcher.Constraint("DistanceY", -1, 1, 4, 2, Q("5.5 in")))
sketch8.addConstraint(Sketcher.Constraint("DistanceY", -1, 1, 6, 2, Q("5.41 in")))
sketch8.addConstraint(Sketcher.Constraint("DistanceX", 5, 1, -1, 1, Q("0.375 in")))
sketch8.addConstraint(Sketcher.Constraint("DistanceX", -1, 1, 8, 2, Q("0.125 in")))
sketch8.addConstraint(Sketcher.Constraint("DistanceX", 3, 2, 4, 2, Q("6.3006 mm")))
sketch8.addConstraint(Sketcher.Constraint("DistanceY", 1, 1, 1, 2, Q("2.519513 mm")))
pocket2 = doc.addObject("PartDesign::Pocket", "Pocket001")
body.addObject(pocket2)
pocket2.Profile = sketch8
pocket2.Length = Q("0.188 in")

doc.recompute()
